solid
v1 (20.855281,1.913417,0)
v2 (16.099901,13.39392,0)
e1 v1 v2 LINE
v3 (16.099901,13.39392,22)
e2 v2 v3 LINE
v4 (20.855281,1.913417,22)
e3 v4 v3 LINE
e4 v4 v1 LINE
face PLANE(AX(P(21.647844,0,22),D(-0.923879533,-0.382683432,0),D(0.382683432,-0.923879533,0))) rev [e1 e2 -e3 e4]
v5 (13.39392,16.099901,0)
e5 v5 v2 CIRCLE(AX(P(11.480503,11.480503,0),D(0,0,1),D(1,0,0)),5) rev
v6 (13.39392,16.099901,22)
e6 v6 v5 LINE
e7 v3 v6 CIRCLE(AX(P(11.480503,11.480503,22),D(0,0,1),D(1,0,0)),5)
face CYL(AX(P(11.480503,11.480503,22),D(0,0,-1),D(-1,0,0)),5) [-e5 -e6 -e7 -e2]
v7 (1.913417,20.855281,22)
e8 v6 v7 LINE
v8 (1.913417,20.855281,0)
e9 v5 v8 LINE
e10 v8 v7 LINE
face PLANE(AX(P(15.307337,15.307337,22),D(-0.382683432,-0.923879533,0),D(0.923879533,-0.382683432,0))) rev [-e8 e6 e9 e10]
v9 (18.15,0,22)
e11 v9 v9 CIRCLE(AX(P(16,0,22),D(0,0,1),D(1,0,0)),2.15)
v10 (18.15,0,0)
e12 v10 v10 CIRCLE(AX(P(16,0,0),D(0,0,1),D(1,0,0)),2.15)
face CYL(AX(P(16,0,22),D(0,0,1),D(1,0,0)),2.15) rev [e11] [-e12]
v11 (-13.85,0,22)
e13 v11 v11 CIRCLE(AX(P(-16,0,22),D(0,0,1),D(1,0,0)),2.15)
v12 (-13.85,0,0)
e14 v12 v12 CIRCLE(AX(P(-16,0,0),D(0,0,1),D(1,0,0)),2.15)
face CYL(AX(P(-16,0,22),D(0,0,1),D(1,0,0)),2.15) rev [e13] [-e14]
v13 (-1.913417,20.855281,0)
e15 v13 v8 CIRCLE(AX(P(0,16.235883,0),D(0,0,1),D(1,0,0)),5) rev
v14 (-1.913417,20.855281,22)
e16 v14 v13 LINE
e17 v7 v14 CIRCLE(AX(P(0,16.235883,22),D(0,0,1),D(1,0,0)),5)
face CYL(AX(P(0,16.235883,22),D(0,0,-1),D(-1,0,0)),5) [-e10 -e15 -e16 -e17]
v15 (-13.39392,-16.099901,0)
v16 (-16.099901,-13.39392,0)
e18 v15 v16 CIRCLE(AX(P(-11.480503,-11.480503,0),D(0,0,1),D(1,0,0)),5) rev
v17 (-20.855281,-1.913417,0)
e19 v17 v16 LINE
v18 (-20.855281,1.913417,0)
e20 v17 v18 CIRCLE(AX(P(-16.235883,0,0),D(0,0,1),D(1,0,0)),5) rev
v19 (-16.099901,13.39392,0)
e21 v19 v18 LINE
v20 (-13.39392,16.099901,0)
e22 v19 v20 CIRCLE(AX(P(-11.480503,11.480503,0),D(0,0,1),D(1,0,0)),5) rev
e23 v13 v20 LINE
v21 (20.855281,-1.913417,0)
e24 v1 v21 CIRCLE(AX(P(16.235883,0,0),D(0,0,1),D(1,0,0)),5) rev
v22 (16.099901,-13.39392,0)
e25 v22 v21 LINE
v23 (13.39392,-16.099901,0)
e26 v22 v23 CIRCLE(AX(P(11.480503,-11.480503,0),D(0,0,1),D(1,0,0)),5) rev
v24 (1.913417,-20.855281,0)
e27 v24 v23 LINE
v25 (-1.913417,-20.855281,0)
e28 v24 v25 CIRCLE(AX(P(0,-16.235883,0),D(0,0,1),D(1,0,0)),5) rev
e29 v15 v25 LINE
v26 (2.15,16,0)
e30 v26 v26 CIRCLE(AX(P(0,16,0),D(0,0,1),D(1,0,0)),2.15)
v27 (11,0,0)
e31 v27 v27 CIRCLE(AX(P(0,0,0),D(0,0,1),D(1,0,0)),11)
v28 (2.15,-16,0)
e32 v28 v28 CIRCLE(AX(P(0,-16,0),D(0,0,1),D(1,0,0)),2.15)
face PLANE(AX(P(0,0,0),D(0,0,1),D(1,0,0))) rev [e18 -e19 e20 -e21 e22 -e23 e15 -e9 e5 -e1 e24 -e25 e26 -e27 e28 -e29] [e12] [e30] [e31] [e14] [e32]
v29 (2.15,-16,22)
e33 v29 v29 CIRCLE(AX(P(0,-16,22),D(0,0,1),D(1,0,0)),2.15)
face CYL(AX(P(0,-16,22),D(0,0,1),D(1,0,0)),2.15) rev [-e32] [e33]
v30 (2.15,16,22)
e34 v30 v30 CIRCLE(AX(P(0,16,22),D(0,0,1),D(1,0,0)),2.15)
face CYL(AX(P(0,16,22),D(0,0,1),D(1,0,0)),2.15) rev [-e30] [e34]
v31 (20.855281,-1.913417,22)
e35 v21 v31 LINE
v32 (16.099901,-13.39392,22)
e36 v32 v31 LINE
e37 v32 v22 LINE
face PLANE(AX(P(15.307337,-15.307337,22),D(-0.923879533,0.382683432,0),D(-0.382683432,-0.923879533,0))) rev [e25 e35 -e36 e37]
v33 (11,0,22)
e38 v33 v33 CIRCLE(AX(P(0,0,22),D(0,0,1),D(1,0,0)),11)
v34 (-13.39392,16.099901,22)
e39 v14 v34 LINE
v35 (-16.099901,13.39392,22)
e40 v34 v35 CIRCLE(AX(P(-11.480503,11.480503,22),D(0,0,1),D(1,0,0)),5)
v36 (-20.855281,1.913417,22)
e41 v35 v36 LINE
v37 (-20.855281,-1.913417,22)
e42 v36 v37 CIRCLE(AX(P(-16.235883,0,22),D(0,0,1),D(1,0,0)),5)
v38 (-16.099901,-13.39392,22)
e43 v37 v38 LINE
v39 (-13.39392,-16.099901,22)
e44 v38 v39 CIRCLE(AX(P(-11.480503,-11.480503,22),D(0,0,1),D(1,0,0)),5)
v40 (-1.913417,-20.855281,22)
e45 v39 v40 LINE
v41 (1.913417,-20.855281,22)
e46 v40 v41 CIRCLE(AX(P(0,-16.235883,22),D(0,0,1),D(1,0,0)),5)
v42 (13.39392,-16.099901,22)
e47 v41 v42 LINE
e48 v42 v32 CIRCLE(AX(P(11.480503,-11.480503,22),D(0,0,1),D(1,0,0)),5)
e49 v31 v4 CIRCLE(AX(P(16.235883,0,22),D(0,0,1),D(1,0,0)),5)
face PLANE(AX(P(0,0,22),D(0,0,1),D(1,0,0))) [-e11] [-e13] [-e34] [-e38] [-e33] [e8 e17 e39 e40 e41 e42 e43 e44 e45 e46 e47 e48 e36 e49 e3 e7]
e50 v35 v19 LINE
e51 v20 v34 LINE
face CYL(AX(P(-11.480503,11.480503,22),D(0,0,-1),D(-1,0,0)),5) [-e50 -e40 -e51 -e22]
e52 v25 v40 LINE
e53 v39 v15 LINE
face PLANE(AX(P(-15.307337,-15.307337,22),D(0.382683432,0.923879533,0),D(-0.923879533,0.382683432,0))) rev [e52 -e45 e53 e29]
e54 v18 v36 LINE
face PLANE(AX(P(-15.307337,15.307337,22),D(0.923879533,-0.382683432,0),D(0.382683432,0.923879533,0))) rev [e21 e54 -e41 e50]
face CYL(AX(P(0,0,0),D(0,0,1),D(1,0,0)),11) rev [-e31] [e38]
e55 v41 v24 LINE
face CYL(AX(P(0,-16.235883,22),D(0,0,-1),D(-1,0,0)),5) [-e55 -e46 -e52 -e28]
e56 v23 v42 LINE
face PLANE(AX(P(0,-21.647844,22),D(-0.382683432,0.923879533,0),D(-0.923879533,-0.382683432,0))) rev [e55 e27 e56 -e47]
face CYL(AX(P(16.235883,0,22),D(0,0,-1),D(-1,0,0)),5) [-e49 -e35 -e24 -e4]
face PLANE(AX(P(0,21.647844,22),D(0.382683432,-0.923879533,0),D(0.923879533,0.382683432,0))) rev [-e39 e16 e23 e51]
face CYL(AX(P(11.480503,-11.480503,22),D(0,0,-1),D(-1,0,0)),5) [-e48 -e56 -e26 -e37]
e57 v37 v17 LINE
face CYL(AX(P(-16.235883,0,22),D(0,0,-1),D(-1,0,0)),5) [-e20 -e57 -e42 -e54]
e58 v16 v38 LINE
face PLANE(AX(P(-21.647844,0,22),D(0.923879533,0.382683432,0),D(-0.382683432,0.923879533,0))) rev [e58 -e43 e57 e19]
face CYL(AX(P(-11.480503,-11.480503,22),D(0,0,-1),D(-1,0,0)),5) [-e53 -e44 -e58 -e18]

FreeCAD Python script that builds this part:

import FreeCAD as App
import Part
import Sketcher

V = App.Vector
Q = App.Units.Quantity


def edges_at(feature, points):
    """Names of the edges that pass closest to the given points."""
    edges = feature.Shape.Edges
    near = lambda p: min(range(len(edges)), key=lambda i: edges[i].distToShape(Part.Vertex(*p))[0])
    return sorted({f"Edge{near(p) + 1}" for p in points})

doc = App.newDocument("Part")
body = doc.addObject("PartDesign::Body", "Body")

# Sketch on XY plane
sketch1 = body.newObject("Sketcher::SketchObject", "Sketch")
sketch1.AttachmentSupport = (doc.getObject("XY_Plane"), [""])
sketch1.MapMode = "FlatFace"
sketch1.addGeometry([
    Part.LineSegment(V(0, -22, 0), V(15, -15, 0)),  # 0
    Part.LineSegment(V(15, -15, 0), V(22, 0, 0)),  # 1
    Part.LineSegment(V(22, 0, 0), V(15, 15, 0)),  # 2
    Part.LineSegment(V(15, 15, 0), V(0, 22, 0)),  # 3
    Part.LineSegment(V(0, 22, 0), V(-15, 15, 0)),  # 4
    Part.LineSegment(V(-15, 15, 0), V(-22, 0, 0)),  # 5
    Part.LineSegment(V(-22, 0, 0), V(-15, -15, 0)),  # 6
    Part.LineSegment(V(-15, -15, 0), V(0, -22, 0)),  # 7
], False)
sketch1.addConstraint([
    Sketcher.Constraint("Coincident", 0, 2, 1, 1),
    Sketcher.Constraint("Coincident", 1, 2, 2, 1),
    Sketcher.Constraint("Coincident", 2, 2, 3, 1),
    Sketcher.Constraint("Coincident", 3, 2, 4, 1),
    Sketcher.Constraint("Coincident", 4, 2, 5, 1),
    Sketcher.Constraint("Coincident", 5, 2, 6, 1),
    Sketcher.Constraint("Coincident", 6, 2, 7, 1),
    Sketcher.Constraint("Coincident", 7, 2, 0, 1),
    Sketcher.Constraint("Symmetric", 0, 2, 4, 2, -1, 1),
    Sketcher.Constraint("Symmetric", 1, 2, 5, 2, -1, 1),
    Sketcher.Constraint("Symmetric", 2, 2, 6, 2, -1, 1),
    Sketcher.Constraint("Symmetric", 3, 2, 7, 2, -1, 1),
    Sketcher.Constraint("Symmetric", 2, 2, 4, 2, -2),
    Sketcher.Constraint("PointOnObject", 1, 2, -1),
    Sketcher.Constraint("PointOnObject", 3, 2, -2),
    Sketcher.Constraint("Perpendicular", 0, 2),
    Sketcher.Constraint("Equal", 0, 1),
    Sketcher.Constraint("Angle", 0, Q("22.5 deg")),
    Sketcher.Constraint("DistanceY", 0, 2, 3, 2, 36.955181),
])
pad1 = body.newObject("PartDesign::Pad", "Pad")
pad1.Profile = sketch1
pad1.Length = 22
doc.recompute()

fillet = body.newObject("PartDesign::Fillet", "Fillet")
fillet.Base = (pad1, edges_at(pad1, [
    (15.307, -15.307, 11),
    (0, -21.648, 11),
    (-15.307, -15.307, 11),
    (-21.648, 0, 11),
    (-15.307, 15.307, 11),
    (0, 21.648, 11),
    (15.307, 15.307, 11),
    (21.648, 0, 11),
]))
fillet.Radius = 5

# Sketch on XY plane
sketch2 = body.newObject("Sketcher::SketchObject", "Sketch001")
sketch2.AttachmentSupport = (doc.getObject("XY_Plane"), [""])
sketch2.MapMode = "FlatFace"
sketch2.AttachmentOffset = App.Placement(V(0, 0, 22), App.Rotation())
sketch2.addGeometry([
    Part.Circle(V(0, 16, 0), V(0, 0, 1), 2.1),
    Part.Circle(V(16, 0, 0), V(0, 0, 1), 2.1),
    Part.Circle(V(0, -16, 0), V(0, 0, 1), 2.1),
    Part.Circle(V(-16, 0, 0), V(0, 0, 1), 2.1),
], False)
sketch2.addConstraint([
    Sketcher.Constraint("Equal", 0, 1),
    Sketcher.Constraint("Equal", 1, 2),
    Sketcher.Constraint("Equal", 2, 3),
    Sketcher.Constraint("Symmetric", 0, 3, 2, 3, -1, 1),
    Sketcher.Constraint("Symmetric", 1, 3, 3, 3, -1, 1),
    Sketcher.Constraint("PointOnObject", 0, 3, -2),
    Sketcher.Constraint("PointOnObject", 1, 3, -1),
    Sketcher.Constraint("Diameter", 0, 4.3),
    Sketcher.Constraint("DistanceY", -1, 1, 0, 3, 16.0),
    Sketcher.Constraint("DistanceX", -1, 1, 1, 3, 16.0),
])
doc.recompute()
hole = body.newObject("PartDesign::Hole", "Hole")
hole.Profile = sketch2
hole.ThreadType = "None"
hole.Diameter = 4.3
hole.DepthType = "ThroughAll"

# Sketch on XY plane
sketch3 = body.newObject("Sketcher::SketchObject", "Sketch002")
sketch3.AttachmentSupport = (doc.getObject("XY_Plane"), [""])
sketch3.MapMode = "FlatFace"
sketch3.AttachmentOffset = App.Placement(V(0, 0, 22), App.Rotation())
sketch3.addGeometry(Part.Circle(V(0, 0, 0), V(0, 0, 1), 11), False)
sketch3.addConstraint([
    Sketcher.Constraint("Coincident", 0, 3, -1, 1),
    Sketcher.Constraint("Diameter", 0, 22.0),
])
pocket1 = body.newObject("PartDesign::Pocket", "Pocket")
pocket1.Profile = sketch3
pocket1.Length = 22

doc.recompute()
